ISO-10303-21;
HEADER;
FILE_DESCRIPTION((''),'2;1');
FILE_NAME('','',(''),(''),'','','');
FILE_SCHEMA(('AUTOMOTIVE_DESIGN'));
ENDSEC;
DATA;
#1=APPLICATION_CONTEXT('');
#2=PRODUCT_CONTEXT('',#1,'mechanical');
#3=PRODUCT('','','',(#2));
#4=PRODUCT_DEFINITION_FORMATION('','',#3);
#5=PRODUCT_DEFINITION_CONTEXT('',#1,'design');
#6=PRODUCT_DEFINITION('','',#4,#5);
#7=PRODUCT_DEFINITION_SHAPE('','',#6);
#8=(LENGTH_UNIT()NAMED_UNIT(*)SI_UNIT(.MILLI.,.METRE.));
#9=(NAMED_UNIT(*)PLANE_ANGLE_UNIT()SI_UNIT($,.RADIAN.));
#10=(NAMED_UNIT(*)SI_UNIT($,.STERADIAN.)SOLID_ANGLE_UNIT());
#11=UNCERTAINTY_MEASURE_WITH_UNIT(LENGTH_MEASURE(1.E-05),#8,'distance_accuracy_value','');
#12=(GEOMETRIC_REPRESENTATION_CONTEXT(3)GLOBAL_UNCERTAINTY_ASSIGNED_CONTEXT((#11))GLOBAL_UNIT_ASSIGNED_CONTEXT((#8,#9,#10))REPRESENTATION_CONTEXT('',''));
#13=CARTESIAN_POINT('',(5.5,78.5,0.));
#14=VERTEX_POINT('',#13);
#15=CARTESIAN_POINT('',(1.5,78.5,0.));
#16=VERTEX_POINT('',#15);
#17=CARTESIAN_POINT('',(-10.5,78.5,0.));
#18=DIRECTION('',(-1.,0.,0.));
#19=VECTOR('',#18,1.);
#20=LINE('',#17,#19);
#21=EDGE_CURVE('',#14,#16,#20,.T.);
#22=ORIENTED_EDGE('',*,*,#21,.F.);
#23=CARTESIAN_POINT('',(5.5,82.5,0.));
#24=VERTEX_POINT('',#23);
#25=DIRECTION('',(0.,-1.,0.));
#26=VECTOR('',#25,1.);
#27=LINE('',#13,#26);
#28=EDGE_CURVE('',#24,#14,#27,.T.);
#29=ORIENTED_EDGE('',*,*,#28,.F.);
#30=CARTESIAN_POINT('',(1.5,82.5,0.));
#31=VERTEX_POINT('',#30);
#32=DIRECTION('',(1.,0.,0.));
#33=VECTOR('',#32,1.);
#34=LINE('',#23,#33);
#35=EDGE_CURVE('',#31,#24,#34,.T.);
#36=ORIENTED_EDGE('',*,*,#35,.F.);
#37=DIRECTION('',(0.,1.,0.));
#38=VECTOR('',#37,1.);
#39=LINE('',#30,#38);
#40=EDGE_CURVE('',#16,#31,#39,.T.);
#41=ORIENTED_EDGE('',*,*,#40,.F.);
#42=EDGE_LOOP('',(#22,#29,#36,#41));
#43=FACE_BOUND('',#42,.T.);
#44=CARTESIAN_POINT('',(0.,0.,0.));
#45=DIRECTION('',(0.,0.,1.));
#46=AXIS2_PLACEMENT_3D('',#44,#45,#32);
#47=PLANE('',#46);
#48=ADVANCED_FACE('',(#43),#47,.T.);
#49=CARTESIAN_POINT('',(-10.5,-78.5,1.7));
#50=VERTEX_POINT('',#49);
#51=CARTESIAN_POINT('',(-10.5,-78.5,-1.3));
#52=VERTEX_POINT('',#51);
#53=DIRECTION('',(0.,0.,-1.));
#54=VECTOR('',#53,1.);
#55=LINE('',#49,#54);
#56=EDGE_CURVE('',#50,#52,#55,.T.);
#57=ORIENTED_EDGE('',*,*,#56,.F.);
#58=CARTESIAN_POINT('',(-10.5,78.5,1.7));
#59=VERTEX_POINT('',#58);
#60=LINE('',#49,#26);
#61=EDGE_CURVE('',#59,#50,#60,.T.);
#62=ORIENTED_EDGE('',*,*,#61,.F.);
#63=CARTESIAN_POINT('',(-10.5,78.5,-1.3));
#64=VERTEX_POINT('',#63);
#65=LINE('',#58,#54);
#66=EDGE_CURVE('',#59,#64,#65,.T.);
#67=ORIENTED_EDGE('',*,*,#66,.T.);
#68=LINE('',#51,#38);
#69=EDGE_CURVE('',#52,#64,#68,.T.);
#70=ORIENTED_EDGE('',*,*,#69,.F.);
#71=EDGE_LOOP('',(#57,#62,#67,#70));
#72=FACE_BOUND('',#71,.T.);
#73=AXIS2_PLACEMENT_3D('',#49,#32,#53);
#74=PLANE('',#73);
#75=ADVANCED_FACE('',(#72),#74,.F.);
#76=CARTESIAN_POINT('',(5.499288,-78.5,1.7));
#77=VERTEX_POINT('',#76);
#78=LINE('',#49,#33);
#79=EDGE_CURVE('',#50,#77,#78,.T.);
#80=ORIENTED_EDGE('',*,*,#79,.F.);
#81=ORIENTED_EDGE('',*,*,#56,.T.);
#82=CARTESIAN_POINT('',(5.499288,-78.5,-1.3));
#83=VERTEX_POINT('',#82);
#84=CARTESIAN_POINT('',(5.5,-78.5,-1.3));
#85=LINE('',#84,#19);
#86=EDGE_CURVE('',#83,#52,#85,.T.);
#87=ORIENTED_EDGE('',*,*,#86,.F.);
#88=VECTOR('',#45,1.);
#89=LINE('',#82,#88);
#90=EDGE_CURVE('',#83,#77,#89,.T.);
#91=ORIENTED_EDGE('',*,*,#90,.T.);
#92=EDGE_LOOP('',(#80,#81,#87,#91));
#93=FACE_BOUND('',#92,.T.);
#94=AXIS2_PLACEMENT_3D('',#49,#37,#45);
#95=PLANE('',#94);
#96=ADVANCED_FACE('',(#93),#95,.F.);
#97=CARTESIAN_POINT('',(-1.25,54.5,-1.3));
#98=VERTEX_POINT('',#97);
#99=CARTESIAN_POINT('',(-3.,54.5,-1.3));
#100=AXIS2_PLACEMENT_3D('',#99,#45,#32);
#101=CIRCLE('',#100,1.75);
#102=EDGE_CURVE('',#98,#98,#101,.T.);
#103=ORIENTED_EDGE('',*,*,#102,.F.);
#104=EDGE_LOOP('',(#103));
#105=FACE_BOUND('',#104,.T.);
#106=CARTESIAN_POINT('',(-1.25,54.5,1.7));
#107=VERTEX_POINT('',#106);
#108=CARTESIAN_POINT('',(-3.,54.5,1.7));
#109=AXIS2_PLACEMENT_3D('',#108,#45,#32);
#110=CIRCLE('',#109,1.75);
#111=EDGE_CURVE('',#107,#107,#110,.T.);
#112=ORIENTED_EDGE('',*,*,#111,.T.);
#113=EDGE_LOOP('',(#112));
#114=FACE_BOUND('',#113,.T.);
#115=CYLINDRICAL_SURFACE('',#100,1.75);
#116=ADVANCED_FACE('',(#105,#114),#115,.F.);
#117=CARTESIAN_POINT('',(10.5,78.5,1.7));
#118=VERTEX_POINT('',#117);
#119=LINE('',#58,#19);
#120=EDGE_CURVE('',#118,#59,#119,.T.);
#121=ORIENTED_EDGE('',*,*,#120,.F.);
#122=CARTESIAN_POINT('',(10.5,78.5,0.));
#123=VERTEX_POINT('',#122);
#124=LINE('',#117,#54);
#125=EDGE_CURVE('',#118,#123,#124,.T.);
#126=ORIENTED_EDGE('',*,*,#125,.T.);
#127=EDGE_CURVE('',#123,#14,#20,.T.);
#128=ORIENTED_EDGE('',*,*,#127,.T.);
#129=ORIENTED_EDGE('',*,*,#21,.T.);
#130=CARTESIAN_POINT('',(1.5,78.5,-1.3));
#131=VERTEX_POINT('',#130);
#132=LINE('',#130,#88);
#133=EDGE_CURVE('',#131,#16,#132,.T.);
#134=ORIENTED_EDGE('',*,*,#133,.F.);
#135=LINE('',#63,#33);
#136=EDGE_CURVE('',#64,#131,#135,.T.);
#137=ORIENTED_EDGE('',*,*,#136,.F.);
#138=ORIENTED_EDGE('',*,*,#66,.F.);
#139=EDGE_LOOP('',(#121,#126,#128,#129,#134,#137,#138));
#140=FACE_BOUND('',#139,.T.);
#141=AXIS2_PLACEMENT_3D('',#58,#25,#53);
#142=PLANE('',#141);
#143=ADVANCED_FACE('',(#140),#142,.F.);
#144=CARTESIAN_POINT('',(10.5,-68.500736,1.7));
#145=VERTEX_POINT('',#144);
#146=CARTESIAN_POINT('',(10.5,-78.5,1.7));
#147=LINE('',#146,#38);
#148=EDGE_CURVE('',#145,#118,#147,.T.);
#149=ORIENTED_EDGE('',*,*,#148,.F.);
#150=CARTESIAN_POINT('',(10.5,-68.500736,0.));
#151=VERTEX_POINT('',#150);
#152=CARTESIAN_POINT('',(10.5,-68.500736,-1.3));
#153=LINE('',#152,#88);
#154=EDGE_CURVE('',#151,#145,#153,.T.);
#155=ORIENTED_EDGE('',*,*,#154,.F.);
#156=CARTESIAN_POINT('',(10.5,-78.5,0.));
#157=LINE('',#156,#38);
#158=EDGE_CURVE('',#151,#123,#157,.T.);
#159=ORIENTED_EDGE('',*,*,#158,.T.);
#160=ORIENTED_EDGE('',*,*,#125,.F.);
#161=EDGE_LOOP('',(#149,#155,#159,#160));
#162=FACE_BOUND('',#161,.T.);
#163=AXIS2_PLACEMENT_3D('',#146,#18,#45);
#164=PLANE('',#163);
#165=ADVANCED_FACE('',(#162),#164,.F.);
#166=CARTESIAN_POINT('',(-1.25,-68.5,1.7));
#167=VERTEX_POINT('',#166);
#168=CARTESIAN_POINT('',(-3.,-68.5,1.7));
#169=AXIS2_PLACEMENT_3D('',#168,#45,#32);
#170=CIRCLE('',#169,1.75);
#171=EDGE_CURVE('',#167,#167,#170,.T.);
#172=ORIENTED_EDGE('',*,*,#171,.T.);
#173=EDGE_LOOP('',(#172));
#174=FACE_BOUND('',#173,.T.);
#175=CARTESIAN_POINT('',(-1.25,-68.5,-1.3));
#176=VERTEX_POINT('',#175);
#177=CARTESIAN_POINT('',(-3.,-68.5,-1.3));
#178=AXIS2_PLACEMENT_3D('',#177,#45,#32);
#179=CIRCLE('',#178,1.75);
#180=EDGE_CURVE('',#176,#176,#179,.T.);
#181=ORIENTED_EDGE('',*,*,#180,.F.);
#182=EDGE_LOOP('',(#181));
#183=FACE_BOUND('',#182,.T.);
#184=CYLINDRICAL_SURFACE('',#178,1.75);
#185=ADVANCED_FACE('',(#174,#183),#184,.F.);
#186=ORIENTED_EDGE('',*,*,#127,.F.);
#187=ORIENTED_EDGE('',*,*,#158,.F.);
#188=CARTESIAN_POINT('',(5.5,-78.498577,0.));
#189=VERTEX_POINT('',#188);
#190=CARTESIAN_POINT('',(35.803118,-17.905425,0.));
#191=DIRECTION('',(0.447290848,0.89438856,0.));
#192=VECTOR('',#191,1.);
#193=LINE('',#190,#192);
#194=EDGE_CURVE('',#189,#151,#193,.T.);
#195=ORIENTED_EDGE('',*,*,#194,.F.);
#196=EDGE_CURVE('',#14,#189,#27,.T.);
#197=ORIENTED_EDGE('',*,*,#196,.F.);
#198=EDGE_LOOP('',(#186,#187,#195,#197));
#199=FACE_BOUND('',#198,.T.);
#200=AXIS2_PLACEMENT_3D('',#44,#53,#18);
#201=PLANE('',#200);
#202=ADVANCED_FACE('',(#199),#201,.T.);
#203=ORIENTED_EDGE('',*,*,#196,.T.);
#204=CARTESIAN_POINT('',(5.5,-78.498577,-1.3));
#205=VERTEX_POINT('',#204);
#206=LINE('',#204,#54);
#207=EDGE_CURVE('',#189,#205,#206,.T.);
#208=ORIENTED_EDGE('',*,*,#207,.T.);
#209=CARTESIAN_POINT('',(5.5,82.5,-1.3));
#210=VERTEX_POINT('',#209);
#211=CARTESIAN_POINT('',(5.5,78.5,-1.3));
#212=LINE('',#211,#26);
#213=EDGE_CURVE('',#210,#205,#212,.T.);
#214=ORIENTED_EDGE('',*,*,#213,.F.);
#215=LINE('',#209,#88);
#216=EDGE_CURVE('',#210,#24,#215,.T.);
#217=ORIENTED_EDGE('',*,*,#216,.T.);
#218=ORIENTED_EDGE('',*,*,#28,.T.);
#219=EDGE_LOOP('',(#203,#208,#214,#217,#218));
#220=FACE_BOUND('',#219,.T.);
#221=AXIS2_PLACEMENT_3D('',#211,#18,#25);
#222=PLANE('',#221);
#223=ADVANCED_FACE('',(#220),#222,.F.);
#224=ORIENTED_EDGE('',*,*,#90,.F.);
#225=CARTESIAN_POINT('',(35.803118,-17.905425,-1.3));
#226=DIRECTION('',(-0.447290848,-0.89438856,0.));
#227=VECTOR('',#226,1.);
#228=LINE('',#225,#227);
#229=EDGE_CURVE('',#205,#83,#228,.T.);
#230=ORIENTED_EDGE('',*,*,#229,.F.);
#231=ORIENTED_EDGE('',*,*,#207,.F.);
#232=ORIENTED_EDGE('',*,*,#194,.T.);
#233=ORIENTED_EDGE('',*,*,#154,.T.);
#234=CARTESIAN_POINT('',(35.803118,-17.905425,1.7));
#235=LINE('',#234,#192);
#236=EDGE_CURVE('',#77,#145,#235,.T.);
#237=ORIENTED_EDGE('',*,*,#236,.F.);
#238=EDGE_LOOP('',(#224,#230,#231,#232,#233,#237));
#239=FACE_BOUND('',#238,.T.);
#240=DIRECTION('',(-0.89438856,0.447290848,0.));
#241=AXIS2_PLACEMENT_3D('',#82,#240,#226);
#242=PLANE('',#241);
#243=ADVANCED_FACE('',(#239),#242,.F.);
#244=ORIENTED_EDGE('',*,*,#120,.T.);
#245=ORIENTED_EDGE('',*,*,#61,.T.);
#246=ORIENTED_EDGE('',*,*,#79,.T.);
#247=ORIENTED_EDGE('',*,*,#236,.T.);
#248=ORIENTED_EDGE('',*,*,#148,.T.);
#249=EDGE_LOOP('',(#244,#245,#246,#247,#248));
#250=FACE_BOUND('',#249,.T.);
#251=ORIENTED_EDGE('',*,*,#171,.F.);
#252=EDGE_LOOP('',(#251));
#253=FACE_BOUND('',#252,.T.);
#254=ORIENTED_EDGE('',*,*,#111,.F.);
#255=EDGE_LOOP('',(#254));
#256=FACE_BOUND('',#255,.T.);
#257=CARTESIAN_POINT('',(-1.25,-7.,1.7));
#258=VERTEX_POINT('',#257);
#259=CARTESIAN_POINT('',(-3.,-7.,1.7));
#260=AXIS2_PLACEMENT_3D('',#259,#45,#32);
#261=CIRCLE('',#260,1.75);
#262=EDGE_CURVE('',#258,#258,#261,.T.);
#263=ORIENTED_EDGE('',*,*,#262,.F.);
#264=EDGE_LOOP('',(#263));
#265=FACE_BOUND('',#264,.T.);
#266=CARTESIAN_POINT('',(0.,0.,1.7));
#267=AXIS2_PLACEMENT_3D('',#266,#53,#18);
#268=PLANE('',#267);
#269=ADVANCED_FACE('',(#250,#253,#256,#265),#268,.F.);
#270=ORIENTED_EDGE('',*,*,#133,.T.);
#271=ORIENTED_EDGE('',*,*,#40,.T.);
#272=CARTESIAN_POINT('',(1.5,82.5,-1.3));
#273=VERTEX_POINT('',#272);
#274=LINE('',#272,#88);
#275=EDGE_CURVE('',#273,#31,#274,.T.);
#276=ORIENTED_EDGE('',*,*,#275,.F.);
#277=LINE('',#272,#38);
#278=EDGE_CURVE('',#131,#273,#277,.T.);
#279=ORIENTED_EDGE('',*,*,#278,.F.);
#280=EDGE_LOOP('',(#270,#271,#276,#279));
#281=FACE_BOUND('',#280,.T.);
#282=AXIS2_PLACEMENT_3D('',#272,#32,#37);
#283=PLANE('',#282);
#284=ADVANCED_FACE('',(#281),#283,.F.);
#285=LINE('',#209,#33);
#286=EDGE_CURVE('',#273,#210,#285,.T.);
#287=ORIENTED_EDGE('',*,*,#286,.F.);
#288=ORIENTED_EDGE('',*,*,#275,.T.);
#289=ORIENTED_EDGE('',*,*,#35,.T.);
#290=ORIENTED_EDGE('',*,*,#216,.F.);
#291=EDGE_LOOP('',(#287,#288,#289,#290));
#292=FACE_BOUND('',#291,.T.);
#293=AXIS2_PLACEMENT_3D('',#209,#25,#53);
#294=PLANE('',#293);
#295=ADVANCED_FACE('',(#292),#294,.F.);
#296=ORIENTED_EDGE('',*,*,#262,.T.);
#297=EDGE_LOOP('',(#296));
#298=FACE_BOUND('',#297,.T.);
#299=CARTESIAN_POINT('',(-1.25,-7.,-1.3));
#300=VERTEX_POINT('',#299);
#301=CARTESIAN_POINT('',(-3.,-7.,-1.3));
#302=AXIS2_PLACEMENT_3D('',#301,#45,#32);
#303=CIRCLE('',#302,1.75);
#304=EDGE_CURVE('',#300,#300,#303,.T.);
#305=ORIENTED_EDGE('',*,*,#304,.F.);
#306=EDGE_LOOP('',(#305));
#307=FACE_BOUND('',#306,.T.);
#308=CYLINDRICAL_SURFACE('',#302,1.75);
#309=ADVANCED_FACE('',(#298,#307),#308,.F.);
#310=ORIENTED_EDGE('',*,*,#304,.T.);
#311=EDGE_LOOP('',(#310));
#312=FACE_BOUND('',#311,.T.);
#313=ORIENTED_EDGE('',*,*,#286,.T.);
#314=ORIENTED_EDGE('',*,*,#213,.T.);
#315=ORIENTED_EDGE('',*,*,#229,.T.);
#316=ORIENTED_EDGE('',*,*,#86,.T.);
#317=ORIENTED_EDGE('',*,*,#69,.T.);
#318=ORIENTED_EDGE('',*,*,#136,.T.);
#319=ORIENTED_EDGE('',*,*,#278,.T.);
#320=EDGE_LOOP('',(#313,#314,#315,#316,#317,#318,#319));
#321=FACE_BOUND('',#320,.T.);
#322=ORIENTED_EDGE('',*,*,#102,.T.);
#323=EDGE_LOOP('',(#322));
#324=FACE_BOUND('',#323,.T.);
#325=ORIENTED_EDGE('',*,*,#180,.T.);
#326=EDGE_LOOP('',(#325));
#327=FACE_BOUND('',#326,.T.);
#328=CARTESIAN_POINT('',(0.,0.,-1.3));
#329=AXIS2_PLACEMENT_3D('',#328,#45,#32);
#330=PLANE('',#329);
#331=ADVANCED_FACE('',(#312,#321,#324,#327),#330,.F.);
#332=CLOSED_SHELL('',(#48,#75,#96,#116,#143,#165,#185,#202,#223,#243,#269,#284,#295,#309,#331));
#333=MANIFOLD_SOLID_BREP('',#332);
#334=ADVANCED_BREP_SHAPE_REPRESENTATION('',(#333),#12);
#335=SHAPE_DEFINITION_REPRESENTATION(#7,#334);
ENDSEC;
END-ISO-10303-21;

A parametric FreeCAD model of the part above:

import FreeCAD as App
import Part
import Sketcher
from FreeCAD import Vector
Q = App.Units.Quantity


def add_polygon(sketch, points):
    """Adds a closed chain of lines whose ends are joined by coincident constraints."""
    first, n = sketch.GeometryCount, len(points)
    for a, b in zip(points, points[1:] + points[:1]):
        sketch.addGeometry(Part.LineSegment(App.Vector(*a, 0), App.Vector(*b, 0)), False)
    for i in range(n):
        sketch.addConstraint(Sketcher.Constraint("Coincident", first + i, 2, first + (i + 1) % n, 1))

doc = App.newDocument("Part")
body = doc.addObject("PartDesign::Body", "Body")

# Sketch on XY plane
sketch1 = doc.addObject("Sketcher::SketchObject", "Sketch")
body.addObject(sketch1)
sketch1.AttachmentSupport = (doc.XY_Plane, [""])
sketch1.MapMode = "FlatFace"
add_polygon(sketch1, [(-10, 78), (-10, -78), (10, -78), (10, 78)])  # lines 0-3
sketch1.addConstraint([
    Sketcher.Constraint("Vertical", 0),
    Sketcher.Constraint("Horizontal", 1),
    Sketcher.Constraint("Vertical", 2),
    Sketcher.Constraint("Horizontal", 3),
    Sketcher.Constraint("Symmetric", 0, 2, 2, 2, -1, 1),
    Sketcher.Constraint("DistanceX", 1, 1, 1, 2, Q("21 mm")),
    Sketcher.Constraint("DistanceY", 0, 2, 0, 1, Q("157 mm")),
])
pad1 = doc.addObject("PartDesign::Pad", "Pad")
body.addObject(pad1)
pad1.Profile = sketch1
pad1.Length = 1.7

# Sketch on XY plane
sketch2 = doc.addObject("Sketcher::SketchObject", "Sketch001")
body.addObject(sketch2)
sketch2.AttachmentSupport = (doc.XY_Plane, [""])
sketch2.MapMode = "FlatFace"
add_polygon(sketch2, [(5.5, -78.5), (-10.5, -78.5), (-10.5, 78.5), (1.5, 78.5), (1.5, 82.5), (5.5, 82.5)])  # lines 0-5
sketch2.addConstraint([
    Sketcher.Constraint("Horizontal", 0),
    Sketcher.Constraint("Vertical", 1),
    Sketcher.Constraint("Horizontal", 2),
    Sketcher.Constraint("Vertical", 3),
    Sketcher.Constraint("Horizontal", 4),
    Sketcher.Constraint("Vertical", 5),
    Sketcher.Constraint("Equal", 4, 3),
    Sketcher.Constraint("DistanceX", 0, 2, 0, 1, Q("16 mm")),
    Sketcher.Constraint("DistanceX", 2, 1, 2, 2, Q("12 mm")),
    Sketcher.Constraint("DistanceY", 1, 1, 1, 2, Q("157 mm")),
    Sketcher.Constraint("DistanceX", 0, 2, -1, 1, Q("10.5 mm")),
    Sketcher.Constraint("DistanceY", 0, 2, -1, 1, Q("78.5 mm")),
])
pad2 = doc.addObject("PartDesign::Pad", "Pad001")
body.addObject(pad2)
pad2.Profile = sketch2
pad2.Length = 1.3
pad2.Reversed = True

# Sketch on XY plane
sketch3 = doc.addObject("Sketcher::SketchObject", "Sketch002")
body.addObject(sketch3)
sketch3.AttachmentSupport = (doc.XY_Plane, [""])
sketch3.MapMode = "FlatFace"
sketch3.AttachmentOffset = App.Placement(Vector(0, 0, 1.7), App.Rotation())
sketch3.addGeometry([
    Part.Circle(Vector(-3, 54.5, 0), Vector(0, 0, 1), 1.8),
    Part.Circle(Vector(-3, -7, 0), Vector(0, 0, 1), 1.8),
    Part.Circle(Vector(-3, -68.5, 0), Vector(0, 0, 1), 1.8),
], False)
sketch3.addConstraint([
    Sketcher.Constraint("Equal", 0, 1),
    Sketcher.Constraint("Equal", 1, 2),
    Sketcher.Constraint("Vertical", 0, 3, 1, 3),
    Sketcher.Constraint("Vertical", 1, 3, 2, 3),
    Sketcher.Constraint("Diameter", 0, Q("3.5 mm")),
    Sketcher.Constraint("DistanceX", 0, 3, -1, 1, Q("3 mm")),
    Sketcher.Constraint("DistanceY", 1, 3, -1, 1, Q("7 mm")),
    Sketcher.Constraint("DistanceY", 2, 3, 0, 3, Q("123 mm")),
    Sketcher.Constraint("DistanceY", -1, 1, 0, 3, Q("54.5 mm")),
])
pocket1 = doc.addObject("PartDesign::Pocket", "Pocket")
body.addObject(pocket1)
pocket1.Profile = sketch3
pocket1.Type = "ThroughAll"

# Sketch on XY plane
sketch4 = doc.addObject("Sketcher::SketchObject", "Sketch003")
body.addObject(sketch4)
sketch4.AttachmentSupport = (doc.XY_Plane, [""])
sketch4.MapMode = "FlatFace"
sketch4.AttachmentOffset = App.Placement(Vector(0, 0, 1.7), App.Rotation())
add_polygon(sketch4, [(10, -69), (5, -78), (10, -78)])  # lines 0-2
sketch4.addConstraint([
    Sketcher.Constraint("Horizontal", 1),
    Sketcher.Constraint("Vertical", 2),
    Sketcher.Constraint("DistanceY", 0, 2, -1, 1, Q("78.5 mm")),
    Sketcher.Constraint("DistanceX", -1, 1, 1, 2, Q("10.5 mm")),
    Sketcher.Constraint("Angle", 0, Q("-116.57 deg")),
    Sketcher.Constraint("Distance", 0, Q("11.18 mm")),
])
pocket2 = doc.addObject("PartDesign::Pocket", "Pocket001")
body.addObject(pocket2)
pocket2.Profile = sketch4
pocket2.Type = "TwoLengths"
pocket2.Length = 1
pocket2.Length2 = 4
pocket2.Reversed = True

doc.recompute()
